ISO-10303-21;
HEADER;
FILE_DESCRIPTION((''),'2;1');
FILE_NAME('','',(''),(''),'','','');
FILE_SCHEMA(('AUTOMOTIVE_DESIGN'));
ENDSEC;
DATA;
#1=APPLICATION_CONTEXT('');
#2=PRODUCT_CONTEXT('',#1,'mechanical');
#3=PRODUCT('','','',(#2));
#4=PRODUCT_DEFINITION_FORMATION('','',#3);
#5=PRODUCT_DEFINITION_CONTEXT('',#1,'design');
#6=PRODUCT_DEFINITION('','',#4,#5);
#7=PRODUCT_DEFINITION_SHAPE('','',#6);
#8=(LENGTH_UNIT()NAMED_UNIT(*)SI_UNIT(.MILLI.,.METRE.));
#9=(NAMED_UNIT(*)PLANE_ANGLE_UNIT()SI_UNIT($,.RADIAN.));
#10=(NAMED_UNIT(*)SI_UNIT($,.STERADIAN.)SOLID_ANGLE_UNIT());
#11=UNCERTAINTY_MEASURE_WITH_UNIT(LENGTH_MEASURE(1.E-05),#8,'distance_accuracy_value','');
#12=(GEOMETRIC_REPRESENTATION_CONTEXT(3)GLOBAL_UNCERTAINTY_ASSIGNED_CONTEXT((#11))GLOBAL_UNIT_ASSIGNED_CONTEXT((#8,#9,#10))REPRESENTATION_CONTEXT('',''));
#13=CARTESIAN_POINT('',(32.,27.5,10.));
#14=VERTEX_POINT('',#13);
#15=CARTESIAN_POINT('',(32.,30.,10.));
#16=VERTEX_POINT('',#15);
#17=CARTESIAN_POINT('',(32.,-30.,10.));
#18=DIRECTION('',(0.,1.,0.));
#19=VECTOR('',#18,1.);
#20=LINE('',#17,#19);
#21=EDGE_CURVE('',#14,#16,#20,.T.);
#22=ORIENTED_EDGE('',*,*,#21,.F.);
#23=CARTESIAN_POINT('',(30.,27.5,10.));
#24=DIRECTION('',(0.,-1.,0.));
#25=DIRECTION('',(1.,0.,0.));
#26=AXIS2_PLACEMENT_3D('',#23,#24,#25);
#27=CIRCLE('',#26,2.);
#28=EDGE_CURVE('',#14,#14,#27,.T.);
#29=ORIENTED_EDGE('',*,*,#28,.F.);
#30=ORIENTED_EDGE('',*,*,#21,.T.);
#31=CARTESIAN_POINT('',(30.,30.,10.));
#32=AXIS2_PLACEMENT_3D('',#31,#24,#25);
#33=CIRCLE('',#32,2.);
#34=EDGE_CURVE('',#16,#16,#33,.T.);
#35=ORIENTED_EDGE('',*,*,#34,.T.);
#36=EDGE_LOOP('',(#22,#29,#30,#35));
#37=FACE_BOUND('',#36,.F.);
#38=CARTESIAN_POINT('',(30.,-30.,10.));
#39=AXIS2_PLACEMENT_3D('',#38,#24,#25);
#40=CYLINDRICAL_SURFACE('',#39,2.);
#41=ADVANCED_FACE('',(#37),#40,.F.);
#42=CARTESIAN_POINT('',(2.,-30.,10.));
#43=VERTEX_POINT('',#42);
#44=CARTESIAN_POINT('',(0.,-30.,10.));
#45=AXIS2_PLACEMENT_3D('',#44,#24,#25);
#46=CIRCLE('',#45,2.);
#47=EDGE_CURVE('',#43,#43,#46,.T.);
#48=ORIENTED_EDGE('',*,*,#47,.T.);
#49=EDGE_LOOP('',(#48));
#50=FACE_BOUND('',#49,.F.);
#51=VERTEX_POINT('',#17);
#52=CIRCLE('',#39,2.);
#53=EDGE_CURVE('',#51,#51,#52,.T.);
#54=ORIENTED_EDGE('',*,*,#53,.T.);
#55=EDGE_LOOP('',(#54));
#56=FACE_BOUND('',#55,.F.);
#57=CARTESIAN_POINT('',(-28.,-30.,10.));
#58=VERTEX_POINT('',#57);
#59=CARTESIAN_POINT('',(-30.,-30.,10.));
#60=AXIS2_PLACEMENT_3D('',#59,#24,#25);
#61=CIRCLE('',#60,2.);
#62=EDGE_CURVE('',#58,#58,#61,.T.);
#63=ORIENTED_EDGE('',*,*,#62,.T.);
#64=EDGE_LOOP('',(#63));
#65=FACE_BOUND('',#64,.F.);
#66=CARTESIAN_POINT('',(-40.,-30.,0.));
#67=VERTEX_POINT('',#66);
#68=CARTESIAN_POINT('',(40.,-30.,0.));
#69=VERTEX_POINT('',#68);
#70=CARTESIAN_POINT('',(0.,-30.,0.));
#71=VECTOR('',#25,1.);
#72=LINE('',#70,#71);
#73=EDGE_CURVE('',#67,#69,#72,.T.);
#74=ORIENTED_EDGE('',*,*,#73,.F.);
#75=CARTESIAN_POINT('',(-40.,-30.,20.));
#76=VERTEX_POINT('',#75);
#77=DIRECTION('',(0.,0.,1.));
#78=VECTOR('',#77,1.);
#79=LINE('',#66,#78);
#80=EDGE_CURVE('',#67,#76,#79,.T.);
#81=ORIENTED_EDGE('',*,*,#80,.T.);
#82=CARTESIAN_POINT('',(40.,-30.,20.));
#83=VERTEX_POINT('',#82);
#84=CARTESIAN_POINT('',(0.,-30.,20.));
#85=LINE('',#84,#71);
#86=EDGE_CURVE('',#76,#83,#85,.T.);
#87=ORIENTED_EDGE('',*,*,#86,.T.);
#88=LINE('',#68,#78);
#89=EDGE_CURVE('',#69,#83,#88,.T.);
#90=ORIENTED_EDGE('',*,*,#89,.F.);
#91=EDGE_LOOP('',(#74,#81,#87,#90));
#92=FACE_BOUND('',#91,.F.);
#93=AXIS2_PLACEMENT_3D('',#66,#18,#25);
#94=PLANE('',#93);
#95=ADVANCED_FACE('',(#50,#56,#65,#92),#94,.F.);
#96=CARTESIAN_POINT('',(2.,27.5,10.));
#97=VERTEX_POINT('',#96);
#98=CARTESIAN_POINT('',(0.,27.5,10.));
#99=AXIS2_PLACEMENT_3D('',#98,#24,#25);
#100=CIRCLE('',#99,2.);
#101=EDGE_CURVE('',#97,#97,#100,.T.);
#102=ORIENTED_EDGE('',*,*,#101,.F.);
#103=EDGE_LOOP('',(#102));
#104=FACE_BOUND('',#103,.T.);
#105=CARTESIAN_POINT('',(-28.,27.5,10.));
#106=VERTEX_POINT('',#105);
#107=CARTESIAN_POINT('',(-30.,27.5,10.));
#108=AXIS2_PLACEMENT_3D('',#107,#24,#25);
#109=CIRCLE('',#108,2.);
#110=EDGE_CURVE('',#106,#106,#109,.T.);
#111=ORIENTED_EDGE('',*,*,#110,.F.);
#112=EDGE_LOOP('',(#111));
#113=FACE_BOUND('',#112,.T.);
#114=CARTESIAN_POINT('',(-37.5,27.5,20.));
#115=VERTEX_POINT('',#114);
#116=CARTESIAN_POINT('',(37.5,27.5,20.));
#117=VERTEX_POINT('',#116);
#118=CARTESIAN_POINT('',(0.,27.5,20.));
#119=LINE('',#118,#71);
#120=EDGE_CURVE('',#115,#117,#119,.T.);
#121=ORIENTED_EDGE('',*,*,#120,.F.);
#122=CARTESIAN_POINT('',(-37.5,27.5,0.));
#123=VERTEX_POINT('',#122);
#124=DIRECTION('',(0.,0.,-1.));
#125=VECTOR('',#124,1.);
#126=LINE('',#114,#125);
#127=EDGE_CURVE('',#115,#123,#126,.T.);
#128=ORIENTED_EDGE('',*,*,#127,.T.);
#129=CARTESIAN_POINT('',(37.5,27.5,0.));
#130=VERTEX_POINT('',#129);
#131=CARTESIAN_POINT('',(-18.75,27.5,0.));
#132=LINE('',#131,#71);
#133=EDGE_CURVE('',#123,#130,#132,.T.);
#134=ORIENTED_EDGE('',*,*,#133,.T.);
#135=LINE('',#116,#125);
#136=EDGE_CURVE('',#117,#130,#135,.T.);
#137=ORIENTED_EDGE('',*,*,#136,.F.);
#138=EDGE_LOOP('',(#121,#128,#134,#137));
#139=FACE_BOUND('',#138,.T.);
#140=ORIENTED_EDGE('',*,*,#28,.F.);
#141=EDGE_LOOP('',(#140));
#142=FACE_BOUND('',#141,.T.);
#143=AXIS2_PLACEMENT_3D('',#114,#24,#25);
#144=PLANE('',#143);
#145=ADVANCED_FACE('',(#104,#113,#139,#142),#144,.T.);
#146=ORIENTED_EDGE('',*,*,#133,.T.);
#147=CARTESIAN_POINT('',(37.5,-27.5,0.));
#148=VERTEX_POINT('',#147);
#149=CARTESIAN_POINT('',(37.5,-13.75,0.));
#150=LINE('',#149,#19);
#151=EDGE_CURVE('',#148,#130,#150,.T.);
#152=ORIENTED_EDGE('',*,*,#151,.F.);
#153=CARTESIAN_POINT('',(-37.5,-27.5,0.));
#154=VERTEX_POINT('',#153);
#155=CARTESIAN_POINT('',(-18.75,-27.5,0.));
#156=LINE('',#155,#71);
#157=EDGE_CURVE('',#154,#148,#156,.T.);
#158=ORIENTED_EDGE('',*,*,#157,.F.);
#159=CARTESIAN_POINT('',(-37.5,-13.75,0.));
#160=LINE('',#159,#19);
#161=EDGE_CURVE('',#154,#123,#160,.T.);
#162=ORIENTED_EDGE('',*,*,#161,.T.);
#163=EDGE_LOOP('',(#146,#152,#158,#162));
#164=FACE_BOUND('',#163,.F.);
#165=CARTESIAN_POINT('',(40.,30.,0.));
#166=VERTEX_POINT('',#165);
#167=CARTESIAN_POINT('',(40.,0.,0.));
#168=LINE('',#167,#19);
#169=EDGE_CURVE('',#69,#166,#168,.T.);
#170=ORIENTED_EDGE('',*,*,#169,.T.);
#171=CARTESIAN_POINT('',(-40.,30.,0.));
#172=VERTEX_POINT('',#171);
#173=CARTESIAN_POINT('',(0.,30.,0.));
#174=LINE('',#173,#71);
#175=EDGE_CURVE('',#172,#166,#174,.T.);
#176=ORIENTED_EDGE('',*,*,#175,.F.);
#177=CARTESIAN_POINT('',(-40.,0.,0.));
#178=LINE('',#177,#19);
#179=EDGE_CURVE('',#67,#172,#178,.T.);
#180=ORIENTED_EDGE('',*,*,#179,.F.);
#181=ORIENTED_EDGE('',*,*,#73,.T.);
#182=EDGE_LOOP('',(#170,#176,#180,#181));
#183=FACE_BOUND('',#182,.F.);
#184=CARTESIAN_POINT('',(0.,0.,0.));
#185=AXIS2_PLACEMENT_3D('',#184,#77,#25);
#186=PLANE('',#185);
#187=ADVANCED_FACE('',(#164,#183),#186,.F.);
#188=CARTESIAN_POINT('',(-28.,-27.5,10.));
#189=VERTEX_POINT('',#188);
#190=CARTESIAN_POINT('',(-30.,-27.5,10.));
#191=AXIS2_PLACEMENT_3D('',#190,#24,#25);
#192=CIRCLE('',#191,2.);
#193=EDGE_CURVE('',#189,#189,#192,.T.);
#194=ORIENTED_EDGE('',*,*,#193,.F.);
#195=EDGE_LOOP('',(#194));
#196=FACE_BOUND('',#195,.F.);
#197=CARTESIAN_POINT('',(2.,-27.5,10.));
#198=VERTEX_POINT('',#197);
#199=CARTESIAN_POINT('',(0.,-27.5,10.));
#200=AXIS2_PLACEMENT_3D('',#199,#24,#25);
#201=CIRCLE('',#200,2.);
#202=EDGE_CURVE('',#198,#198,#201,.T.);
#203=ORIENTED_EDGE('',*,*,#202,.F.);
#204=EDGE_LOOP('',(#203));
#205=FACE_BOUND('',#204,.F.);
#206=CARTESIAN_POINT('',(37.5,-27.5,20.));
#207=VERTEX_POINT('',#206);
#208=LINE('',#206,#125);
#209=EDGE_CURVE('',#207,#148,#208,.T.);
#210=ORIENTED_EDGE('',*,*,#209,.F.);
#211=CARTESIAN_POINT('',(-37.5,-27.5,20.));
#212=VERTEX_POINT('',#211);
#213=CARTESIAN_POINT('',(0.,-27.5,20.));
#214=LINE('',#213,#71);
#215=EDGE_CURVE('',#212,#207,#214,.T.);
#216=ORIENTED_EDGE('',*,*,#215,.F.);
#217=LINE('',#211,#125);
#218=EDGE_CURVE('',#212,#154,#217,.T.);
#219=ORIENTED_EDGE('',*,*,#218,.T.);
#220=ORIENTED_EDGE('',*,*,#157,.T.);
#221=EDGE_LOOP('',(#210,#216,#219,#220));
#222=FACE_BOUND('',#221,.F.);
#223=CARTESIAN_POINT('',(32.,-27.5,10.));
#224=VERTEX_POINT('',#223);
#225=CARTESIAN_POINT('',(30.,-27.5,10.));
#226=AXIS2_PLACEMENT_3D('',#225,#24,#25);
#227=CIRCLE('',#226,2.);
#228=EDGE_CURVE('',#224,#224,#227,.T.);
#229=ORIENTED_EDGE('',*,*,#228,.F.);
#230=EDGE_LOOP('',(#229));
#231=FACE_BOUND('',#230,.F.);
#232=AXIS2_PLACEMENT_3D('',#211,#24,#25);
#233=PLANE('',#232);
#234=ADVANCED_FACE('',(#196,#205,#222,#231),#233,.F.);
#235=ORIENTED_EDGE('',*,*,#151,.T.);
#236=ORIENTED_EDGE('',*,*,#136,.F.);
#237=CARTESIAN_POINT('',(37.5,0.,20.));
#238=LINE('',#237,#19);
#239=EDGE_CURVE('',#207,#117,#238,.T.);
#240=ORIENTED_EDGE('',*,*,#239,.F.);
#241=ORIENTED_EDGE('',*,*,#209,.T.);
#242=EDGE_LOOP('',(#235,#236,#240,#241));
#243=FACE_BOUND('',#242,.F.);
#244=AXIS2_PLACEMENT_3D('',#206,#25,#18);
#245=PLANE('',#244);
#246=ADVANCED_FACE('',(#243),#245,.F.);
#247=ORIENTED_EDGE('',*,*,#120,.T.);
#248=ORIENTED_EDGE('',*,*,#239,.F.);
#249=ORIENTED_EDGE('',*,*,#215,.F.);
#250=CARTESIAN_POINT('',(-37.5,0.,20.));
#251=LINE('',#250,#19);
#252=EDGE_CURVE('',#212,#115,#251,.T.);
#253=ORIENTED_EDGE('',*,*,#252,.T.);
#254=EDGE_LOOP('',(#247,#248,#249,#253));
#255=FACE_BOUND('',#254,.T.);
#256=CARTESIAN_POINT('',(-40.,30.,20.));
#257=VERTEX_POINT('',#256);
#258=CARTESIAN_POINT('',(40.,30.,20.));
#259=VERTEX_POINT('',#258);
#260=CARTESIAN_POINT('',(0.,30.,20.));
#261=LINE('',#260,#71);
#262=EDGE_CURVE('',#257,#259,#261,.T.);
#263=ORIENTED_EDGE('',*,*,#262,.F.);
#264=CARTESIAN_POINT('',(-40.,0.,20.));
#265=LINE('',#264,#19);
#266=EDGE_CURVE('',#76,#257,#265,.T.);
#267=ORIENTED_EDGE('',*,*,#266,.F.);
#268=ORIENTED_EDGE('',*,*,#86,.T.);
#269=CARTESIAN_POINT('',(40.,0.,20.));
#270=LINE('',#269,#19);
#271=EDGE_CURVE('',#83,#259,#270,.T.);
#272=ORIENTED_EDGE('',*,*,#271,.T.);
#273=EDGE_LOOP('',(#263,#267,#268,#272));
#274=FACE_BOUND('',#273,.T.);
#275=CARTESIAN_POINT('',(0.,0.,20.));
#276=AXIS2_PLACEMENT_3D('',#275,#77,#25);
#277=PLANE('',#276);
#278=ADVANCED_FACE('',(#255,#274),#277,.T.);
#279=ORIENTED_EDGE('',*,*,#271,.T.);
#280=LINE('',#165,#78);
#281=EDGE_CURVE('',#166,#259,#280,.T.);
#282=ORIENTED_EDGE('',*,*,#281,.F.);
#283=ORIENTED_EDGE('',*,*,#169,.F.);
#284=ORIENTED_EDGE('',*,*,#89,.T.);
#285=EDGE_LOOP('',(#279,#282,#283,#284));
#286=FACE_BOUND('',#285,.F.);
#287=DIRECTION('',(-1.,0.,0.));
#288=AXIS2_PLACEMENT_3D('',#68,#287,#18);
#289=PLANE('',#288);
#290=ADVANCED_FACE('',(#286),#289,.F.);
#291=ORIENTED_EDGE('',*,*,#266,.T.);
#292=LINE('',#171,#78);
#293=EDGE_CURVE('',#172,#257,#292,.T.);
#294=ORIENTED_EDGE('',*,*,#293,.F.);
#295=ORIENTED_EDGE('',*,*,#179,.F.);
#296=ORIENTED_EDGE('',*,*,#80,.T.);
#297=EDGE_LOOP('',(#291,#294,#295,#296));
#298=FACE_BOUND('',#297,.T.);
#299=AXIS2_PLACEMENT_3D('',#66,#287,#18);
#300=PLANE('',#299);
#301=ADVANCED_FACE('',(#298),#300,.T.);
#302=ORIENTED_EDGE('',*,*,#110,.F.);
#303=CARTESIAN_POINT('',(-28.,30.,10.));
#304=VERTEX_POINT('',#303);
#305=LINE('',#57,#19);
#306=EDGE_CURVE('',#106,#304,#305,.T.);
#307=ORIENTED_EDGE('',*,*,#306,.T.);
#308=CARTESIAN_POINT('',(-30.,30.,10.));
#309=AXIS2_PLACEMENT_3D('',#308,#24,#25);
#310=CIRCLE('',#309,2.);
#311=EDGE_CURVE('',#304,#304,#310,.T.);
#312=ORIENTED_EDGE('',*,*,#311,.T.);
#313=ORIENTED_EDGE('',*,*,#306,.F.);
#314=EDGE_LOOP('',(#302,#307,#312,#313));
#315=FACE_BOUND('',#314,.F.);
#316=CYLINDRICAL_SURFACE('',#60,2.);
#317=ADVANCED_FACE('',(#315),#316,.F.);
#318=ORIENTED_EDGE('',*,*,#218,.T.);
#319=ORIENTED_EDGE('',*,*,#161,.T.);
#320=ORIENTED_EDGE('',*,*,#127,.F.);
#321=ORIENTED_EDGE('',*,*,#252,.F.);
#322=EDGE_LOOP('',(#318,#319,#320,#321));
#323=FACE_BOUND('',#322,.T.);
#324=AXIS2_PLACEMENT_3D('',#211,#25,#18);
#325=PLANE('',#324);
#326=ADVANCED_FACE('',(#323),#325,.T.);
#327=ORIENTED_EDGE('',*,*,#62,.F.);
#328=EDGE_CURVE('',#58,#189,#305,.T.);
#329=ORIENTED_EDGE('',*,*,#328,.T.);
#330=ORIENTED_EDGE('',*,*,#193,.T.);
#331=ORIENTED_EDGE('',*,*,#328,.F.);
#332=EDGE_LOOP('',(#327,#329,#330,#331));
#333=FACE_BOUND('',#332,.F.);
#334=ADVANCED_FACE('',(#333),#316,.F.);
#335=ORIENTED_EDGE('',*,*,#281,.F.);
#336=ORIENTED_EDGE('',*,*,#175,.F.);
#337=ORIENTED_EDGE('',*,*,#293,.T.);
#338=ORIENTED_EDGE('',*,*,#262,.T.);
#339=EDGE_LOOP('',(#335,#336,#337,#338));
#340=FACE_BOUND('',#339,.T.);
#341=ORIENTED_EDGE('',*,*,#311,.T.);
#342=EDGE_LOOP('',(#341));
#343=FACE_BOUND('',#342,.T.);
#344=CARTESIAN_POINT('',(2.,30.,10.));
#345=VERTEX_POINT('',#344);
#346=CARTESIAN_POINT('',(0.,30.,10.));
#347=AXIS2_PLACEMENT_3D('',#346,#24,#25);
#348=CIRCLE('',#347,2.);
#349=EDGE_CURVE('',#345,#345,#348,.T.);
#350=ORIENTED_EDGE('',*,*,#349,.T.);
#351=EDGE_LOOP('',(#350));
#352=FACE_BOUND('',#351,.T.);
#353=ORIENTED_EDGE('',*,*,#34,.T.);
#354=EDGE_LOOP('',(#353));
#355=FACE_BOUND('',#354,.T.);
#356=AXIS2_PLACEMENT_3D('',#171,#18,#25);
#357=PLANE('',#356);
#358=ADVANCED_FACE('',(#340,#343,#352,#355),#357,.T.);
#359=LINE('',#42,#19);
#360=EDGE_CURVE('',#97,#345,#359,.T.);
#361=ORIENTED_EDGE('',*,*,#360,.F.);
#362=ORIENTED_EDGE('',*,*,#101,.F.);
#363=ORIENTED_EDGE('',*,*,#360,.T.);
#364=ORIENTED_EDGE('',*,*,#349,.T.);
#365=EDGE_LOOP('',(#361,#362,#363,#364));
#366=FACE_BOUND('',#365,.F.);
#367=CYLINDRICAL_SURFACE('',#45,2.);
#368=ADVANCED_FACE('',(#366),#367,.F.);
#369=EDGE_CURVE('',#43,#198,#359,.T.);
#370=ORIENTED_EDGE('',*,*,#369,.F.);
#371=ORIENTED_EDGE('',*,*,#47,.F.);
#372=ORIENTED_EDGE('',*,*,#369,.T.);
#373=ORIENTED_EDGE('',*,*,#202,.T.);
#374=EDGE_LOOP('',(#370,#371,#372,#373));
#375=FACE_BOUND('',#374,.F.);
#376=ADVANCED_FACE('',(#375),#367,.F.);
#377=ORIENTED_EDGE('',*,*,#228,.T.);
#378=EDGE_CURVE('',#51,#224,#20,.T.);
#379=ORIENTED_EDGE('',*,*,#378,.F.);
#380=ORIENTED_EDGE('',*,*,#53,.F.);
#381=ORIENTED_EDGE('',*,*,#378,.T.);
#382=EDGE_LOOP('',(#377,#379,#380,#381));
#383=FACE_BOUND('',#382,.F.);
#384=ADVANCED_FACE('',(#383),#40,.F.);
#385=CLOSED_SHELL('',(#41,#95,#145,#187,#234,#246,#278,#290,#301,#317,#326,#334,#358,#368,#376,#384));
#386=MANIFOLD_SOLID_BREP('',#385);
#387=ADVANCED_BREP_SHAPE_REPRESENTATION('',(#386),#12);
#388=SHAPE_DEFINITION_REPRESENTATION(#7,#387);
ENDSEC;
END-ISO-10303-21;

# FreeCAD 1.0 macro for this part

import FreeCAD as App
import Part
import Sketcher

V = App.Vector
Q = App.Units.Quantity


def add_polygon(sketch, points):
    """Adds a closed chain of lines whose ends are joined by coincident constraints."""
    first, n = sketch.GeometryCount, len(points)
    for a, b in zip(points, points[1:] + points[:1]):
        sketch.addGeometry(Part.LineSegment(App.Vector(*a, 0), App.Vector(*b, 0)), False)
    for i in range(n):
        sketch.addConstraint(Sketcher.Constraint("Coincident", first + i, 2, first + (i + 1) % n, 1))

doc = App.newDocument("Part")
params = doc.addObject("Spreadsheet::Sheet", "Params")
for row, (alias, value) in enumerate([
    ("sketch1_width", "80 mm"),
    ("sketch1_height", "60 mm"),
    ("pad1_length", "20 mm"),
    ("sketch2_width", "75 mm"),
    ("sketch2_height", "55 mm"),
    ("sketch3_diameter", "4 mm"),
], start=1):
    params.set(f"A{row}", alias)
    params.set(f"B{row}", "=" + value)
    params.setAlias(f"B{row}", alias)

body = doc.addObject("PartDesign::Body", "Body")

# Sketch on XY plane
sketch1 = body.newObject("Sketcher::SketchObject", "Sketch")
sketch1.AttachmentSupport = (doc.getObject("XY_Plane"), [""])
sketch1.MapMode = "FlatFace"
add_polygon(sketch1, [(-40, 30), (-40, -30), (40, -30), (40, 30)])  # lines 0-3
sketch1.addConstraint([
    Sketcher.Constraint("Vertical", 0),
    Sketcher.Constraint("Horizontal", 1),
    Sketcher.Constraint("Vertical", 2),
    Sketcher.Constraint("Horizontal", 3),
    Sketcher.Constraint("Symmetric", 0, 2, 2, 2, -1, 1),
    Sketcher.Constraint("DistanceX", 1, 1, 1, 2, Q("80 mm")),
    Sketcher.Constraint("DistanceY", 0, 2, 0, 1, Q("60 mm")),
])
sketch1.setExpression("Constraints[9]", "Params.sketch1_width")
sketch1.setExpression("Constraints[10]", "Params.sketch1_height")
pad1 = body.newObject("PartDesign::Pad", "Pad")
pad1.Profile = sketch1
pad1.setExpression("Length", "Params.pad1_length")

# Sketch on XY plane
sketch2 = body.newObject("Sketcher::SketchObject", "Sketch001")
sketch2.AttachmentSupport = (doc.getObject("XY_Plane"), [""])
sketch2.MapMode = "FlatFace"
sketch2.AttachmentOffset = App.Placement(V(0, 0, 20), App.Rotation())
add_polygon(sketch2, [(-38, 28), (-38, -28), (38, -28), (38, 28)])  # lines 0-3
sketch2.addConstraint([
    Sketcher.Constraint("Vertical", 0),
    Sketcher.Constraint("Horizontal", 1),
    Sketcher.Constraint("Vertical", 2),
    Sketcher.Constraint("Horizontal", 3),
    Sketcher.Constraint("Symmetric", 0, 2, 2, 2, -1, 1),
    Sketcher.Constraint("DistanceX", 1, 1, 1, 2, Q("75 mm")),
    Sketcher.Constraint("DistanceY", 0, 2, 0, 1, Q("55 mm")),
])
sketch2.setExpression("Constraints[9]", "Params.sketch2_width")
sketch2.setExpression("Constraints[10]", "Params.sketch2_height")
pocket1 = body.newObject("PartDesign::Pocket", "Pocket")
pocket1.Profile = sketch2
pocket1.Type = "ThroughAll"

# Sketch on XZ plane
sketch3 = body.newObject("Sketcher::SketchObject", "Sketch002")
sketch3.AttachmentSupport = (doc.getObject("XZ_Plane"), [""])
sketch3.MapMode = "FlatFace"
sketch3.AttachmentOffset = App.Placement(V(0, 0, 30), App.Rotation())
sketch3.addGeometry([
    Part.Circle(V(-30, 10, 0), V(0, 0, 1), 2),
    Part.Circle(V(0, 10, 0), V(0, 0, 1), 2),
    Part.Circle(V(30, 10, 0), V(0, 0, 1), 2),
], False)
sketch3.addConstraint([
    Sketcher.Constraint("Equal", 0, 1),
    Sketcher.Constraint("Equal", 1, 2),
    Sketcher.Constraint("Symmetric", 0, 3, 2, 3, -2),
    Sketcher.Constraint("PointOnObject", 1, 3, -2),
    Sketcher.Constraint("Horizontal", 0, 3, 1, 3),
    Sketcher.Constraint("Diameter", 0, Q("4 mm")),
    Sketcher.Constraint("DistanceX", 0, 3, -1, 1, Q("30 mm")),
    Sketcher.Constraint("DistanceY", -1, 1, 0, 3, Q("10 mm")),
])
sketch3.setExpression("Constraints[5]", "Params.sketch3_diameter")
pocket2 = body.newObject("PartDesign::Pocket", "Pocket001")
pocket2.Profile = sketch3
pocket2.Type = "ThroughAll"

doc.recompute()
